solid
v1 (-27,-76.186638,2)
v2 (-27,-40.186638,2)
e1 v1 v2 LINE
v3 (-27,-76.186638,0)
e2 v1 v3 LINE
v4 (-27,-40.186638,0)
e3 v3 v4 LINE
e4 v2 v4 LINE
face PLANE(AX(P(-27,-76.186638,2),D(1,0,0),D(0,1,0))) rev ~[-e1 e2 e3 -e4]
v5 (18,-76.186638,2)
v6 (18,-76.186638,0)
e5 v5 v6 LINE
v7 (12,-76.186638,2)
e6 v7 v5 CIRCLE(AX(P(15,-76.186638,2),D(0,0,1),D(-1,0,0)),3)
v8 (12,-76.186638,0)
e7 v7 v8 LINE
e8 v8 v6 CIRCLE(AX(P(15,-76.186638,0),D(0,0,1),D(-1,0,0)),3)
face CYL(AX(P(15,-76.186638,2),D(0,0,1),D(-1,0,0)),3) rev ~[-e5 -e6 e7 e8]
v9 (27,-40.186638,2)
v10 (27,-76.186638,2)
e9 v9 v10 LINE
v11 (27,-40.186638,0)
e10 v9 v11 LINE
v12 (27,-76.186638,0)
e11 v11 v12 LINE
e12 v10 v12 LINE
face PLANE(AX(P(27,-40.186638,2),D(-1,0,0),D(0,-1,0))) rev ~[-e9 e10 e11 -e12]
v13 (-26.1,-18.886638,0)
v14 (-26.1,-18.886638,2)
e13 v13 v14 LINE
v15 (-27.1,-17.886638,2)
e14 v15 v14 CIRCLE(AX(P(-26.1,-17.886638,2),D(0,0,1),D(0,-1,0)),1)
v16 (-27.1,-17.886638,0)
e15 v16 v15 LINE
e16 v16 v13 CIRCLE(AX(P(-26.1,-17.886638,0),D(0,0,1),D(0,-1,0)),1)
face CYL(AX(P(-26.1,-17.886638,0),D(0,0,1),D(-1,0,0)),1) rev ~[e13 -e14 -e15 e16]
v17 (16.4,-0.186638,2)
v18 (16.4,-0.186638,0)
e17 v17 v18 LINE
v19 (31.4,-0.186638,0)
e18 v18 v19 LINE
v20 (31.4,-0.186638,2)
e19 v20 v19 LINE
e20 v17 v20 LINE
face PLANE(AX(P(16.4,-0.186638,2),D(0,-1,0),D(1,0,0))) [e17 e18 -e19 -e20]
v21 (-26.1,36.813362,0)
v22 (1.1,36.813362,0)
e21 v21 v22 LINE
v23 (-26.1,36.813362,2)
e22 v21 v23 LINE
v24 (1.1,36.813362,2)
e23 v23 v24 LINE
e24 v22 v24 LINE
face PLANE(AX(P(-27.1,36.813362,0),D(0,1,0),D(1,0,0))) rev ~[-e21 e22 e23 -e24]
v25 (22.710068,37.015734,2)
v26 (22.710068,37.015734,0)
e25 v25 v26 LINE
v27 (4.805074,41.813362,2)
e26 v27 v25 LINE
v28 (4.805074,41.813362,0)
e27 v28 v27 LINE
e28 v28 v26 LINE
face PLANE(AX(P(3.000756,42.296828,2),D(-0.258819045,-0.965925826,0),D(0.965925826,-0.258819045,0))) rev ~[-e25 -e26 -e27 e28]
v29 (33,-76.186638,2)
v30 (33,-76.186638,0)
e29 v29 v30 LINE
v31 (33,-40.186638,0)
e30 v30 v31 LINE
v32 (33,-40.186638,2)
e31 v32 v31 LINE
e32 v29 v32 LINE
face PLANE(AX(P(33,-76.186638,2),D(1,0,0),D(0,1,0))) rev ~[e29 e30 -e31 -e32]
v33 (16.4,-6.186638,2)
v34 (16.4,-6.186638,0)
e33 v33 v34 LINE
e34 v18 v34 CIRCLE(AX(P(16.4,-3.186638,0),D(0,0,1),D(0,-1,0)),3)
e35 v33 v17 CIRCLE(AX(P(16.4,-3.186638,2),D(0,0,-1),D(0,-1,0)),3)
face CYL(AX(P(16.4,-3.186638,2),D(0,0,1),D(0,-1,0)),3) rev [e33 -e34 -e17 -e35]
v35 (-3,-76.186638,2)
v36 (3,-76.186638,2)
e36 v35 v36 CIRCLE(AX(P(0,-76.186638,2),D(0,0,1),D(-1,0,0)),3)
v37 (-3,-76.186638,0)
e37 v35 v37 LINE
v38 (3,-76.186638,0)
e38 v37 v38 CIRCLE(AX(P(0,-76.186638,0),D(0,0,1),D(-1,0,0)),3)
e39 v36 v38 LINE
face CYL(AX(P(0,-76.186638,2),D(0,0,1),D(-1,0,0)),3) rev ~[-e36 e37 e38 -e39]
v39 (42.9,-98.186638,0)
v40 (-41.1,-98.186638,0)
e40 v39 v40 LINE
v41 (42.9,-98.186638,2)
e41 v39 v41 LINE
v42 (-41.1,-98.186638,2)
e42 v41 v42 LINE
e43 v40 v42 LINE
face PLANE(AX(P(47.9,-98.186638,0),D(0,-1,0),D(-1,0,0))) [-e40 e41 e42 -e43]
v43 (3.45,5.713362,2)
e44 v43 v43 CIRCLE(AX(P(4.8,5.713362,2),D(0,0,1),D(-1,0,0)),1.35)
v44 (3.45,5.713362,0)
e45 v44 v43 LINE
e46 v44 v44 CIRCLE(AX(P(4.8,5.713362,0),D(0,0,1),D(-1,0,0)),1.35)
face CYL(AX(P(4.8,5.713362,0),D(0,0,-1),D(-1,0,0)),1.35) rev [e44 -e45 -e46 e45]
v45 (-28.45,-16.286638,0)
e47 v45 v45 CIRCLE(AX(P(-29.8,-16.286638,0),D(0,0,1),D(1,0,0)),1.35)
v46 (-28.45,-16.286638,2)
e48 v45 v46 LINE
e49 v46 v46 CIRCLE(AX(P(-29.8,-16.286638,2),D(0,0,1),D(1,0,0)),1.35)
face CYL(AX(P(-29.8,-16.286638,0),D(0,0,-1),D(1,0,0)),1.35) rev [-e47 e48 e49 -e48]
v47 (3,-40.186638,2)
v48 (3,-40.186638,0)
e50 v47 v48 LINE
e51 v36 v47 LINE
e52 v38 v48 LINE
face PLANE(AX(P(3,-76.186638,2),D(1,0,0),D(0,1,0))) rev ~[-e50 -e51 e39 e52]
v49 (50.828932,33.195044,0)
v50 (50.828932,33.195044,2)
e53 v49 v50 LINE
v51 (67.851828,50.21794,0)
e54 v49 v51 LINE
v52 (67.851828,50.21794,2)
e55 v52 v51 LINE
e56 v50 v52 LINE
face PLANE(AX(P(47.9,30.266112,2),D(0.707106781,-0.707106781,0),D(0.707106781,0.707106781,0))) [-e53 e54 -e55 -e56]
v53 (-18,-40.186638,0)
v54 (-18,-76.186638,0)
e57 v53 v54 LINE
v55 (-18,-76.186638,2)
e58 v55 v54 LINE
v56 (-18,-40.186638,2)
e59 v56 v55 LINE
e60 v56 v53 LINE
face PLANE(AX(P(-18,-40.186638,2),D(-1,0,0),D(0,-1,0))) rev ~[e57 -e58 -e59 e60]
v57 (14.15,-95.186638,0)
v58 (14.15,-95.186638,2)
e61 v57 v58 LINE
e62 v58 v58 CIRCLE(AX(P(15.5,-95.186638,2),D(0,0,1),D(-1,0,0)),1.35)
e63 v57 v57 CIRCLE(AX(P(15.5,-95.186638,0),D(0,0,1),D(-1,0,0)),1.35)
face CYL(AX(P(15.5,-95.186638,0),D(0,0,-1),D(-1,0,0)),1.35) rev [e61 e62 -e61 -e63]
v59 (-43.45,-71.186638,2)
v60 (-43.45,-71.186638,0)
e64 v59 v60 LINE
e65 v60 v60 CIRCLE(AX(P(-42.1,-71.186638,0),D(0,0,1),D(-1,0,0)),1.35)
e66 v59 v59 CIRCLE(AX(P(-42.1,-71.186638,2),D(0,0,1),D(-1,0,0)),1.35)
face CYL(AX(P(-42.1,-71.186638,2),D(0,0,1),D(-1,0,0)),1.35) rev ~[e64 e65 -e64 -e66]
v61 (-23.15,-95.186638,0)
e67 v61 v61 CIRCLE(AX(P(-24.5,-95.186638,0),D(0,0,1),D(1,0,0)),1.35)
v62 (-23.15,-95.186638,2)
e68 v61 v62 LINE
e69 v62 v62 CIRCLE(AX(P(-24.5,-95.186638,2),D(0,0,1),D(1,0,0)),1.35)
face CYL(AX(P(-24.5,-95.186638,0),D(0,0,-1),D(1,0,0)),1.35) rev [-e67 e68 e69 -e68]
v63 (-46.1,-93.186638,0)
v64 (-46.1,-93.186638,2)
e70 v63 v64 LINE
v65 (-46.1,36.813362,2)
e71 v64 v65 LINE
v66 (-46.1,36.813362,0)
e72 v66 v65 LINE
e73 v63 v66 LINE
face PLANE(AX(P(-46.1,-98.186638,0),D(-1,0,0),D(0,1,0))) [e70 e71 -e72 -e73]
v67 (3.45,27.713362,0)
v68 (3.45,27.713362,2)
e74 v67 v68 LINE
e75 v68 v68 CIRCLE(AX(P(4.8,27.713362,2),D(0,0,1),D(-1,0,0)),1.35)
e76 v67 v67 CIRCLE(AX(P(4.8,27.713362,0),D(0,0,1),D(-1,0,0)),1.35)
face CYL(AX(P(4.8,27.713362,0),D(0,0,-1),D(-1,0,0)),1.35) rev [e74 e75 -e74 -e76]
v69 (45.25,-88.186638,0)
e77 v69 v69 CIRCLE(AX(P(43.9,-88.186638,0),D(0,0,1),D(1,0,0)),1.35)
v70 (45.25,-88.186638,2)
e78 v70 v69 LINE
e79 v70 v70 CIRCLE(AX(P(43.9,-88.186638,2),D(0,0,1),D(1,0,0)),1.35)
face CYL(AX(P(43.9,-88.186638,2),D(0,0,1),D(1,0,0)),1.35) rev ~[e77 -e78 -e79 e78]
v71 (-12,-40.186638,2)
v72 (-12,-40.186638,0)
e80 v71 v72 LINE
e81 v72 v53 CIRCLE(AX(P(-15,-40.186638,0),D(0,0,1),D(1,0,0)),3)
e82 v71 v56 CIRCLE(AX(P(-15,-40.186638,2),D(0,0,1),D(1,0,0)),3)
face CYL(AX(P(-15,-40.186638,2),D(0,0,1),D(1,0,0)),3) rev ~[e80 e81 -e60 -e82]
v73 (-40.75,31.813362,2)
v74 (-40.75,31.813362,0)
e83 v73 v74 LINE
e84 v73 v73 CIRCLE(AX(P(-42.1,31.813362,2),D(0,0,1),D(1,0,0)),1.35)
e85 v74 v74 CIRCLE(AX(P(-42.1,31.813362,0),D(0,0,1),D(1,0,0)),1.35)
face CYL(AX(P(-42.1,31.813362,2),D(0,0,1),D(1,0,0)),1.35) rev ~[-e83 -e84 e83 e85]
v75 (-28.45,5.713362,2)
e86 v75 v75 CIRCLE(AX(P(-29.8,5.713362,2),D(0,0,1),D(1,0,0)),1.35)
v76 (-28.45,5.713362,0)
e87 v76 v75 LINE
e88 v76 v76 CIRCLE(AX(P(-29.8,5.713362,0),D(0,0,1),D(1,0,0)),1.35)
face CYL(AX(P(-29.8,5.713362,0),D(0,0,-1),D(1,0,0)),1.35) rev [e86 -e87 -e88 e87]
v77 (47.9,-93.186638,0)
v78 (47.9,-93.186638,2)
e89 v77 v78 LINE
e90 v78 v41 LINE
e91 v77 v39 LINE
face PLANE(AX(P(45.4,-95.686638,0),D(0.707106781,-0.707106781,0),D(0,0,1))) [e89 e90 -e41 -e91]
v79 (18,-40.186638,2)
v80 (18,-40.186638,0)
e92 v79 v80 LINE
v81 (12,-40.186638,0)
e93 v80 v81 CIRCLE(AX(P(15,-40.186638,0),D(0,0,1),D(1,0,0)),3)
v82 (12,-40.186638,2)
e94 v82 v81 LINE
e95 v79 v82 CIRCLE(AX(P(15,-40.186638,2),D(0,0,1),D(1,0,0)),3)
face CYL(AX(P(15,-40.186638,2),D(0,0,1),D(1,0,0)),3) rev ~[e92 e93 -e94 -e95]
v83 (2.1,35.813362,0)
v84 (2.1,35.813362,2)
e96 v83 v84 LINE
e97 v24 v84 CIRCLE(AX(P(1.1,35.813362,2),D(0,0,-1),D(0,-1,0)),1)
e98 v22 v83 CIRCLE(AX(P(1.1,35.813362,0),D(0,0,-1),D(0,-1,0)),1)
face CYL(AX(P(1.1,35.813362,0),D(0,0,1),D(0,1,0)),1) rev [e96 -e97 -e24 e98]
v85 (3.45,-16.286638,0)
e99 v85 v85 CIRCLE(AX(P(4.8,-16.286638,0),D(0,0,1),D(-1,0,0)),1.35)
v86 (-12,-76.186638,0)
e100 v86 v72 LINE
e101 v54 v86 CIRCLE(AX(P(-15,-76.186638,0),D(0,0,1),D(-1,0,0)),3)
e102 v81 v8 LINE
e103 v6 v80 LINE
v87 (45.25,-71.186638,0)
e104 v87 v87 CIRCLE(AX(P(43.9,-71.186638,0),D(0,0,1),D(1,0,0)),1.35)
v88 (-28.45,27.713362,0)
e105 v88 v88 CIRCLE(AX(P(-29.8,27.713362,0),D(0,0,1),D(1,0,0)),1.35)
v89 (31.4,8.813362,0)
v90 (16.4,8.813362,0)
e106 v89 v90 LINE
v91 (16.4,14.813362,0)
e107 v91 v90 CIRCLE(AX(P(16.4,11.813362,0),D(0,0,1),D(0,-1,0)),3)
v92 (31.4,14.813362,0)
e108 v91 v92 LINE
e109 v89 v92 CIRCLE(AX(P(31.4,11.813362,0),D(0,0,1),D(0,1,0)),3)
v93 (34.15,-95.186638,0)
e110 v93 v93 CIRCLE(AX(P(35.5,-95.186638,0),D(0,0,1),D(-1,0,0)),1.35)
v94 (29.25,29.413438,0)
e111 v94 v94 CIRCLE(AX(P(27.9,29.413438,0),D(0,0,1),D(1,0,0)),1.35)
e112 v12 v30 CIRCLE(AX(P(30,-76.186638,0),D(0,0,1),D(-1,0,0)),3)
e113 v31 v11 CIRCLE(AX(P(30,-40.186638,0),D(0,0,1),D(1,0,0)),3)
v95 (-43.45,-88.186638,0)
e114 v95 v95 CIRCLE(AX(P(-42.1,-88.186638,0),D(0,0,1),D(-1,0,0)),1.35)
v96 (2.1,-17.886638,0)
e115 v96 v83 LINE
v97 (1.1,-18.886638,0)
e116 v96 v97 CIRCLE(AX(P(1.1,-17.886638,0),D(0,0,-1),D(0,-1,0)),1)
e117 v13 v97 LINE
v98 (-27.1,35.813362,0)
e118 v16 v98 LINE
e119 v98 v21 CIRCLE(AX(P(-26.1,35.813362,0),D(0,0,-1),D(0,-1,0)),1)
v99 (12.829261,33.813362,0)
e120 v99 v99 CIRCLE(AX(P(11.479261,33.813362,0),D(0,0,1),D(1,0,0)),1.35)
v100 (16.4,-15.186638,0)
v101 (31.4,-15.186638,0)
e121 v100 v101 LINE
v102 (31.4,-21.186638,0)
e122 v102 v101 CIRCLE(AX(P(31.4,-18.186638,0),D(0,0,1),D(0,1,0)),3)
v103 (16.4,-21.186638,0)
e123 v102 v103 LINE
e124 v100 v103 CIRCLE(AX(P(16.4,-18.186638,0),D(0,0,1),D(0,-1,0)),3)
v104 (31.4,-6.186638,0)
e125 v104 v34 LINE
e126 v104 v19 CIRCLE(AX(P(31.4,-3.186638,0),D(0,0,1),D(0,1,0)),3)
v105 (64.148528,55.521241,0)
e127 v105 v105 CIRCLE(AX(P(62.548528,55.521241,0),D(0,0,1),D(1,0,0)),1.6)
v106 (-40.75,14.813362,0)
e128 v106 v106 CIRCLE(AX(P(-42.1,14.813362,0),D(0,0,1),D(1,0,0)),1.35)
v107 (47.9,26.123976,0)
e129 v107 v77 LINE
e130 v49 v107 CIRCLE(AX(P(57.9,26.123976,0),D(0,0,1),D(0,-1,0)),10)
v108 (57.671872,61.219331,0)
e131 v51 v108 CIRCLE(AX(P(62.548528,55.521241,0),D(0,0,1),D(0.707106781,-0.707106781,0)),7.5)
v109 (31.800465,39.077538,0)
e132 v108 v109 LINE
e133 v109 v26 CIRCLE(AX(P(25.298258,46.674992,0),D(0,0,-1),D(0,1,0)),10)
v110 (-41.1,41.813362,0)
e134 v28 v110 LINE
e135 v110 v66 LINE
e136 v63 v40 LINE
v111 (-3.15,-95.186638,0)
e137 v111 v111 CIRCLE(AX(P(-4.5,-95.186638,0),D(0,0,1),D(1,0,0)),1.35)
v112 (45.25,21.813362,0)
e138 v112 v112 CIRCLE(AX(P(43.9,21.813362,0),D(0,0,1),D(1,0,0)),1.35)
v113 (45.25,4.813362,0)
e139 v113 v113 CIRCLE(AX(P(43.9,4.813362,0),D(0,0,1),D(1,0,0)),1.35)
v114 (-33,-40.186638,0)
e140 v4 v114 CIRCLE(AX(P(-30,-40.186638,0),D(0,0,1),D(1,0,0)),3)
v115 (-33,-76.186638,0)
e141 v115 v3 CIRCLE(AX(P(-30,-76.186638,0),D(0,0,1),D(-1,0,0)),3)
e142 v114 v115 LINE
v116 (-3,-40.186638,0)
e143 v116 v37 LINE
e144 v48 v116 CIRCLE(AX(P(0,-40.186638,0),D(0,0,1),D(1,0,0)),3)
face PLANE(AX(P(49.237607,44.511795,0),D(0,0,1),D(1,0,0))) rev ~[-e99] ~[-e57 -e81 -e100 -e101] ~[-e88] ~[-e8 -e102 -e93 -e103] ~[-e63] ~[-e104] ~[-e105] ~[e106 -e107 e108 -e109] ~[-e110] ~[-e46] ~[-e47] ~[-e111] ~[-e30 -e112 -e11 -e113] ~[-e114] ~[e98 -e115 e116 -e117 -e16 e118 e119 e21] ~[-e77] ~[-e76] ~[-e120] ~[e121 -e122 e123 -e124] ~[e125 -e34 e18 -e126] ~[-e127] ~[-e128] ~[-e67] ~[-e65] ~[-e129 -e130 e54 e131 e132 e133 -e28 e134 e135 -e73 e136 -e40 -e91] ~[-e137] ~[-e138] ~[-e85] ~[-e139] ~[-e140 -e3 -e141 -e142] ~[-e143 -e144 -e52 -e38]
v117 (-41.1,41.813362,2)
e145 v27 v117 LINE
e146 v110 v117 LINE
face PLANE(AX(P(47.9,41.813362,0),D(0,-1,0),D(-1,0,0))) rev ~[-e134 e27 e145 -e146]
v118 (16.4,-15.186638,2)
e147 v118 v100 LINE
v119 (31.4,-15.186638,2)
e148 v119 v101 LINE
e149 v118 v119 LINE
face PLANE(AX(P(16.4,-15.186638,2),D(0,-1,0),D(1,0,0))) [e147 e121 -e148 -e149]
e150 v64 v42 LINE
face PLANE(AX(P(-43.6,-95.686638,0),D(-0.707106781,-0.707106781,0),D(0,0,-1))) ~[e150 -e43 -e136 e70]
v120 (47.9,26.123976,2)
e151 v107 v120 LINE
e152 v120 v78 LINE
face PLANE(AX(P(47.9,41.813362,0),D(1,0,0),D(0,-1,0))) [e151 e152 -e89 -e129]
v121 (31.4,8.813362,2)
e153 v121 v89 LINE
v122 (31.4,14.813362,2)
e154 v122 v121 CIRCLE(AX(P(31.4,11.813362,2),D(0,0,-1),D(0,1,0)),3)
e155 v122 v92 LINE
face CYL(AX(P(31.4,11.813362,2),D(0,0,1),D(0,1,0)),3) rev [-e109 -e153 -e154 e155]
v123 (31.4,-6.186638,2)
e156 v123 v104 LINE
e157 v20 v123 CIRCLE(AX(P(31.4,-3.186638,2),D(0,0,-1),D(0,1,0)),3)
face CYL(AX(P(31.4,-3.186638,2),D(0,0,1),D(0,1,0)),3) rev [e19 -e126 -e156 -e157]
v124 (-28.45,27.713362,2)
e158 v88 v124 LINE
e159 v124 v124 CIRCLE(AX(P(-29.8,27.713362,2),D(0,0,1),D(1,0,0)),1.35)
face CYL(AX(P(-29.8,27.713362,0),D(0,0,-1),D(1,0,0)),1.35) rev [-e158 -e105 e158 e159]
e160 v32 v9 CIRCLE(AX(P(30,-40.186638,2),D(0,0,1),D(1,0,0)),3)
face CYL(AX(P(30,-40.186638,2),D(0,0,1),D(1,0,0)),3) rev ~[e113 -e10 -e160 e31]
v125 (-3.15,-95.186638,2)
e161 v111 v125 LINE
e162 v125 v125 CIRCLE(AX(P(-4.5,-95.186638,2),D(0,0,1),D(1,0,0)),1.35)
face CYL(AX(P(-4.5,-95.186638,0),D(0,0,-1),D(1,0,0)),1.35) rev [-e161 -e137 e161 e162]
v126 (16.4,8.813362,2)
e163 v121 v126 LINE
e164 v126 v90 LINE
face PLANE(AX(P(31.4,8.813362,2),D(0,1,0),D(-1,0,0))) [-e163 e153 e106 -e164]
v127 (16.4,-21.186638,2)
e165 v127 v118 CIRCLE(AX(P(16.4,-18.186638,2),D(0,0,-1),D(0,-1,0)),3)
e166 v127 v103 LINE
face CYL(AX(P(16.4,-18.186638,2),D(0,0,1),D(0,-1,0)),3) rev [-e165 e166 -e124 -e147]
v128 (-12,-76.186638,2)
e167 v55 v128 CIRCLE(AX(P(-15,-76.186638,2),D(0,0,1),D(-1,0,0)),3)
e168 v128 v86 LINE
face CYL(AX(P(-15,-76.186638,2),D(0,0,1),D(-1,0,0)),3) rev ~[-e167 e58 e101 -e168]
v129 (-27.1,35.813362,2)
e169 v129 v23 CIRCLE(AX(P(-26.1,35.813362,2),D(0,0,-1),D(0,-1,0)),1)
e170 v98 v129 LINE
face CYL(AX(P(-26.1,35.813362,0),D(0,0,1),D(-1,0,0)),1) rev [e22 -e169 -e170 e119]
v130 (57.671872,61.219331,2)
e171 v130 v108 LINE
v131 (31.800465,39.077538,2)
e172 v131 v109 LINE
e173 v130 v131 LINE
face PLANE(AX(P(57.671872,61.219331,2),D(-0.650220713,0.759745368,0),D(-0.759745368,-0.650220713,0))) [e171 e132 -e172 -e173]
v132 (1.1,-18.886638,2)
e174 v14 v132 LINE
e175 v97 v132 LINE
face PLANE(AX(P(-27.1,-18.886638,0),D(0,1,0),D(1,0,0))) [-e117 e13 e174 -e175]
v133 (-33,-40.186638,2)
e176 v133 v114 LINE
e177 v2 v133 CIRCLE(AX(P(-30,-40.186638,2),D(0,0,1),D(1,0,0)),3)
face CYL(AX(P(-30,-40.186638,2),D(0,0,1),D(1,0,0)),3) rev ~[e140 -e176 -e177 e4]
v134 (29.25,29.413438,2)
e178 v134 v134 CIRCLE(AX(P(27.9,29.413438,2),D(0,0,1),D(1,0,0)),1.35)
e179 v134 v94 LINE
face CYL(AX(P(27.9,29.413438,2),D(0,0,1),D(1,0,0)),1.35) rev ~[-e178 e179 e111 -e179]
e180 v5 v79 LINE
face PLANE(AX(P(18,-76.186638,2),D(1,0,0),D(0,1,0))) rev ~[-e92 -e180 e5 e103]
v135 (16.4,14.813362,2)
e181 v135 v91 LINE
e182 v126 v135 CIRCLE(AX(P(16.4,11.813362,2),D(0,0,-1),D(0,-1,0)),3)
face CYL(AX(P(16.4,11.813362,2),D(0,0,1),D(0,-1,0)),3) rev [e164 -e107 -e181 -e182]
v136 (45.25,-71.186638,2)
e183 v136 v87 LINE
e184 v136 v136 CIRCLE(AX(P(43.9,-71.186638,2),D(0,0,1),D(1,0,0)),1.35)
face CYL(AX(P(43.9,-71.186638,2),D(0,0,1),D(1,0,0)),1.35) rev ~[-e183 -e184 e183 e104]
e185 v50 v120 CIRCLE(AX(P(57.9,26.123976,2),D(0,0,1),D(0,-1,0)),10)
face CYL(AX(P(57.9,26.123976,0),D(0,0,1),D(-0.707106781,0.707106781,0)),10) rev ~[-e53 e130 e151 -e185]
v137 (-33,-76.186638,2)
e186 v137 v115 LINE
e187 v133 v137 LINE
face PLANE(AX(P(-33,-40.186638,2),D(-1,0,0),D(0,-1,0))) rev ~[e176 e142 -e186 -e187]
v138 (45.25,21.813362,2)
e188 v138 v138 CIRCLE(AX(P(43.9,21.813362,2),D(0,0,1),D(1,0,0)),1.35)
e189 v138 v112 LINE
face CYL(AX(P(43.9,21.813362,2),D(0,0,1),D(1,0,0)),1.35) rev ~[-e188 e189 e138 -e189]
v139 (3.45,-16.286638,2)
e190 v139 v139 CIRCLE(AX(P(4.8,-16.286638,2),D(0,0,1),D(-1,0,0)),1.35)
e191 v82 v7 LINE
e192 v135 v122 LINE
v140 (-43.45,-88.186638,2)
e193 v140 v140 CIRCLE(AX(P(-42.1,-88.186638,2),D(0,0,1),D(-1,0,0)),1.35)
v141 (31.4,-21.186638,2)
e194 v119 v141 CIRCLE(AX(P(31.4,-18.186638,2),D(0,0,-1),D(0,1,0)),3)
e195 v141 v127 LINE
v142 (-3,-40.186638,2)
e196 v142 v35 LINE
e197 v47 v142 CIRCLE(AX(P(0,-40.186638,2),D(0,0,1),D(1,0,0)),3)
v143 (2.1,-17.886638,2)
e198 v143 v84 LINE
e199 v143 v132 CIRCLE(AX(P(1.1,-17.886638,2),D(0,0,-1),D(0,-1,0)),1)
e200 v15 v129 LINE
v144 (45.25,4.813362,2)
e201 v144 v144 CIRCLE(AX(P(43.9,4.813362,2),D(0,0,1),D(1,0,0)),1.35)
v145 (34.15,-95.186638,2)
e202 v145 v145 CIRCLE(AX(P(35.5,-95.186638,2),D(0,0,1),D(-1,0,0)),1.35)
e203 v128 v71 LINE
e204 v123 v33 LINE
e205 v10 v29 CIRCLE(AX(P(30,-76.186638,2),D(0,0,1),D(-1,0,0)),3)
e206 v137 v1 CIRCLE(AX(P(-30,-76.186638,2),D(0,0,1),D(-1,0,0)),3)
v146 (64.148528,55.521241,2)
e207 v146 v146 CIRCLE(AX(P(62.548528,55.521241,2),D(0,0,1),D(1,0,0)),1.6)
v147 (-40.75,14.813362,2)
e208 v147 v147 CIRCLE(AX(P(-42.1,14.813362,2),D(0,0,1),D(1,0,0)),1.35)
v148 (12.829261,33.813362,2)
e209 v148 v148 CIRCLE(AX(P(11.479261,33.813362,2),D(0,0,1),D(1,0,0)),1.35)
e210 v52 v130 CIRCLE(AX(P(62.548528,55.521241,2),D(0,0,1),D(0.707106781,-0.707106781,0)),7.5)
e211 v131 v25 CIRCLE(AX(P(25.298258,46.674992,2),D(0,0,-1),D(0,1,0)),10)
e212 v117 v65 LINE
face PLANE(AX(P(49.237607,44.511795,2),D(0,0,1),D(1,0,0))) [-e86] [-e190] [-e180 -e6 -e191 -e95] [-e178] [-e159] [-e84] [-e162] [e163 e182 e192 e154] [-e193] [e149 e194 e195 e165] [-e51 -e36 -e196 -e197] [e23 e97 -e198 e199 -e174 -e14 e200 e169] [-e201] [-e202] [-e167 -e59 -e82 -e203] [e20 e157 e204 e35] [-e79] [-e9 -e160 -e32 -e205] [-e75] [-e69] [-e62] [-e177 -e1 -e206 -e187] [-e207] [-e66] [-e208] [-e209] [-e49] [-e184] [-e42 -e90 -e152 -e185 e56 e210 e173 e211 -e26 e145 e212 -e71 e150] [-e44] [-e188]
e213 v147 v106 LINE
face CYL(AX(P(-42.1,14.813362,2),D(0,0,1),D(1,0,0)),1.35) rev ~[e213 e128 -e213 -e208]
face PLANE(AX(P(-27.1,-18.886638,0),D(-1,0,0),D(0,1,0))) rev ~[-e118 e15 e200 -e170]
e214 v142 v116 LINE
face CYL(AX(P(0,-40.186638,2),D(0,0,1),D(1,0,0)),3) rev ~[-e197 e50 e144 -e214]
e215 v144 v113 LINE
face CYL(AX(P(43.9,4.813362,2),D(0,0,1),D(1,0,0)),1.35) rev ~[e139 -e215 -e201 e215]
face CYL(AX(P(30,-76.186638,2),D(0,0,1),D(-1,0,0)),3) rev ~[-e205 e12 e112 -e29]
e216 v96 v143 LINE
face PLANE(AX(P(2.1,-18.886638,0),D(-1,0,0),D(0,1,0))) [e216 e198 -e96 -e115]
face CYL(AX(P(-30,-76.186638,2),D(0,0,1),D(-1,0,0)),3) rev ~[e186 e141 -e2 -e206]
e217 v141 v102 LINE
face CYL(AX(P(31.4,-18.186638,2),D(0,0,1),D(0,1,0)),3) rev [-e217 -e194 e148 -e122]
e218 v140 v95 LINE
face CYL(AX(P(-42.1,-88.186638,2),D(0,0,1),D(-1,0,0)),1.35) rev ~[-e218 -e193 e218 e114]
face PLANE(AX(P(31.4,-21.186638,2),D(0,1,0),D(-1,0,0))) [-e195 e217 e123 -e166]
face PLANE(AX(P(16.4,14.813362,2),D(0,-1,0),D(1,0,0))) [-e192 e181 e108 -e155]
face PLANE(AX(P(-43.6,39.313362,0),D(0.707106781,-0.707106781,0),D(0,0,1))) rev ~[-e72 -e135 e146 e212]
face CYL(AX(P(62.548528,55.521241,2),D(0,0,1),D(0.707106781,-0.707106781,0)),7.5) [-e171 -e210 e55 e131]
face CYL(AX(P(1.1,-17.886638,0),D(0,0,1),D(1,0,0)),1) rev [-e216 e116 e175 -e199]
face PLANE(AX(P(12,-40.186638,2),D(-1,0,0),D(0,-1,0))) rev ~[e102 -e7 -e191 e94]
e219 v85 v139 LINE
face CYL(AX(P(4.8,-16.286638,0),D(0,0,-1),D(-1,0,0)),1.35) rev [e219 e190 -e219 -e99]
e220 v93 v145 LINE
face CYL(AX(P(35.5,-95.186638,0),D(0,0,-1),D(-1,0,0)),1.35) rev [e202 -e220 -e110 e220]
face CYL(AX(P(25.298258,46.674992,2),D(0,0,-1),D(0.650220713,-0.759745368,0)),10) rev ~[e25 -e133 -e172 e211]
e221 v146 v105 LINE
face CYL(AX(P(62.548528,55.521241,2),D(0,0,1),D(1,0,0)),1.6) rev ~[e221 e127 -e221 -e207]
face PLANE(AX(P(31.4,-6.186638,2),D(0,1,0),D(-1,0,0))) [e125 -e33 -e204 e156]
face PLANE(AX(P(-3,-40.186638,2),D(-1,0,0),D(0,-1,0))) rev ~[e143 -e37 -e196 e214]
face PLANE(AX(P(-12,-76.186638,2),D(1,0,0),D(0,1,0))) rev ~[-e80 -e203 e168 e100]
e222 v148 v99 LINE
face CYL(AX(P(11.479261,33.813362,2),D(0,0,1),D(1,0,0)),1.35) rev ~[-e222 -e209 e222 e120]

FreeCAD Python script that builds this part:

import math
import FreeCAD as App
import Part
import Sketcher
Q = App.Units.Quantity


def edges_at(feature, points):
    """Names of the edges that pass closest to the given points."""
    edges = feature.Shape.Edges
    near = lambda p: min(range(len(edges)), key=lambda i: edges[i].distToShape(Part.Vertex(*p))[0])
    return sorted({f"Edge{near(p) + 1}" for p in points})


def add_polygon(sketch, points):
    """Adds a closed chain of lines whose ends are joined by coincident constraints."""
    first, n = sketch.GeometryCount, len(points)
    for a, b in zip(points, points[1:] + points[:1]):
        sketch.addGeometry(Part.LineSegment(App.Vector(*a, 0), App.Vector(*b, 0)), False)
    for i in range(n):
        sketch.addConstraint(Sketcher.Constraint("Coincident", first + i, 2, first + (i + 1) % n, 1))

doc = App.newDocument("Part")
params = doc.addObject("Spreadsheet::Sheet", "Params")
for row, (alias, value) in enumerate([
    ("sketch1_diameter", "2.7 mm"),
    ("sketch1_width", "94 mm"),
    ("sketch1_height", "140 mm"),
    ("sketch1_width2", "29.2 mm"),
    ("sketch1_height2", "55.7 mm"),
    ("pad1_length", "2 mm"),
    ("fillet_radius", "1 mm"),
    ("sketch2_diameter", "2.7 mm"),
    ("sketch3_diameter", "2.7 mm"),
    ("sketch4_diameter", "2.7 mm"),
    ("sketch5_diameter", "2.7 mm"),
    ("sketch6_diameter", "2.7 mm"),
    ("sketch7_diameter", "2.7 mm"),
    ("sketch8_diameter", "2.7 mm"),
    ("sketch9_diameter", "2.7 mm"),
    ("sketch10_radius", "3 mm"),
    ("sketch10_height", "36 mm"),
    ("sketch11_radius", "3 mm"),
    ("sketch11_height", "36 mm"),
    ("sketch12_radius", "3 mm"),
    ("sketch12_height", "36 mm"),
    ("sketch13_radius", "3 mm"),
    ("sketch13_height", "36 mm"),
    ("sketch14_radius", "3 mm"),
    ("sketch14_height", "36 mm"),
    ("sketch15_radius", "3 mm"),
    ("sketch15_width", "15 mm"),
    ("sketch16_radius", "3 mm"),
    ("sketch16_width", "15 mm"),
    ("sketch17_radius", "3 mm"),
    ("sketch17_width", "15 mm"),
    ("chamfer_size", "5 mm"),
    ("sketch18_diameter", "2.7 mm"),
    ("sketch19_diameter", "2.7 mm"),
    ("sketch21_diameter", "3.2 mm"),
    ("sketch21_radius", "7.5 mm"),
    ("pad2_length", "2 mm"),
    ("fillet2_radius", "10 mm"),
], start=1):
    params.set(f"A{row}", alias)
    params.set(f"B{row}", "=" + value)
    params.setAlias(f"B{row}", alias)

body = doc.addObject("PartDesign::Body", "Body")

# Sketch on XY plane
sketch1 = doc.addObject("Sketcher::SketchObject", "Sketch")
body.addObject(sketch1)
sketch1.AttachmentSupport = (doc.XY_Plane, [""])
sketch1.MapMode = "FlatFace"
add_polygon(sketch1, [(47.9, 41.813362), (-46.1, 41.813362), (-46.1, -98.186638), (47.9, -98.186638)])  # lines 0-3
sketch1.addGeometry(Part.Circle(App.Vector(35.5, -95.186638, 0), App.Vector(0, 0, 1), 1.35), False)  # 4
sketch1.addGeometry(Part.Circle(App.Vector(15.5, -95.186638, 0), App.Vector(0, 0, 1), 1.35), False)  # 5
sketch1.addGeometry(Part.Circle(App.Vector(-4.5, -95.186638, 0), App.Vector(0, 0, 1), 1.35), False)  # 6
sketch1.addGeometry(Part.Circle(App.Vector(-24.5, -95.186638, 0), App.Vector(0, 0, 1), 1.35), False)  # 7
sketch1.addGeometry(Part.Circle(App.Vector(4.8, -16.286638, 0), App.Vector(0, 0, 1), 1.35), False)  # 8
sketch1.addGeometry(Part.Circle(App.Vector(4.8, 5.713362, 0), App.Vector(0, 0, 1), 1.35), False)  # 9
sketch1.addGeometry(Part.Circle(App.Vector(4.8, 27.713362, 0), App.Vector(0, 0, 1), 1.35), False)  # 10
sketch1.addGeometry(Part.Circle(App.Vector(-29.8, -16.286638, 0), App.Vector(0, 0, 1), 1.35), False)  # 11
add_polygon(sketch1, [(-27.1, -18.886638), (-27.1, 36.813362), (2.1, 36.813362), (2.1, -18.886638)])  # lines 12-15
sketch1.addGeometry(Part.Circle(App.Vector(-29.8, 5.713362, 0), App.Vector(0, 0, 1), 1.35), False)  # 16
sketch1.addGeometry(Part.Circle(App.Vector(-29.8, 27.713362, 0), App.Vector(0, 0, 1), 1.35), False)  # 17
sketch1.addConstraint([
    Sketcher.Constraint("Horizontal", 0),
    Sketcher.Constraint("Vertical", 1),
    Sketcher.Constraint("Horizontal", 2),
    Sketcher.Constraint("Vertical", 3),
    Sketcher.Constraint("Vertical", 12),
    Sketcher.Constraint("Horizontal", 13),
    Sketcher.Constraint("Vertical", 14),
    Sketcher.Constraint("Horizontal", 15),
    Sketcher.Constraint("Equal", 4, 5),
    Sketcher.Constraint("Equal", 5, 6),
    Sketcher.Constraint("Equal", 6, 7),
    Sketcher.Constraint("Equal", 7, 8),
    Sketcher.Constraint("Equal", 8, 9),
    Sketcher.Constraint("Equal", 9, 10),
    Sketcher.Constraint("Equal", 10, 11),
    Sketcher.Constraint("Equal", 11, 16),
    Sketcher.Constraint("Equal", 16, 17),
    Sketcher.Constraint("Horizontal", 4, 3, 5, 3),
    Sketcher.Constraint("Horizontal", 5, 3, 6, 3),
    Sketcher.Constraint("Horizontal", 6, 3, 7, 3),
    Sketcher.Constraint("Horizontal", 8, 3, 11, 3),
    Sketcher.Constraint("Horizontal", 9, 3, 16, 3),
    Sketcher.Constraint("Horizontal", 10, 3, 17, 3),
    Sketcher.Constraint("Vertical", 8, 3, 9, 3),
    Sketcher.Constraint("Vertical", 9, 3, 10, 3),
    Sketcher.Constraint("Vertical", 11, 3, 16, 3),
    Sketcher.Constraint("Vertical", 16, 3, 17, 3),
    Sketcher.Constraint("Diameter", 4, Q("2.7 mm")),
    Sketcher.Constraint("DistanceX", 0, 2, 0, 1, Q("94 mm")),
    Sketcher.Constraint("DistanceY", 1, 2, 1, 1, Q("140 mm")),
    Sketcher.Constraint("DistanceX", 13, 1, 13, 2, Q("29.2 mm")),
    Sketcher.Constraint("DistanceY", 12, 1, 12, 2, Q("55.7 mm")),
    Sketcher.Constraint("DistanceX", 5, 3, 4, 3, Q("20 mm")),
    Sketcher.Constraint("DistanceX", 6, 3, 5, 3, Q("20 mm")),
    Sketcher.Constraint("DistanceX", 7, 3, 6, 3, Q("20 mm")),
    Sketcher.Constraint("DistanceY", 8, 3, 9, 3, Q("22 mm")),
    Sketcher.Constraint("DistanceY", 9, 3, 10, 3, Q("22 mm")),
    Sketcher.Constraint("DistanceY", 1, 2, 7, 3, Q("3 mm")),
    Sketcher.Constraint("DistanceX", 0, 2, 12, 2, Q("19 mm")),
    Sketcher.Constraint("DistanceY", 12, 2, 0, 2, Q("5 mm")),
    Sketcher.Constraint("DistanceX", -1, 1, 4, 3, Q("35.5 mm")),
    Sketcher.Constraint("DistanceX", -1, 1, 8, 3, Q("4.8 mm")),
    Sketcher.Constraint("DistanceX", 11, 3, -1, 1, Q("29.8 mm")),
    Sketcher.Constraint("DistanceX", 0, 2, -1, 1, Q("46.1 mm")),
    Sketcher.Constraint("DistanceY", 6, 3, 8, 3, Q("78.9 mm")),
    Sketcher.Constraint("DistanceY", 4, 3, -1, 1, Q("95.186638 mm")),
])
sketch1.setExpression("Constraints[35]", "Params.sketch1_diameter")
sketch1.setExpression("Constraints[36]", "Params.sketch1_width")
sketch1.setExpression("Constraints[37]", "Params.sketch1_height")
sketch1.setExpression("Constraints[38]", "Params.sketch1_width2")
sketch1.setExpression("Constraints[39]", "Params.sketch1_height2")
pad1 = doc.addObject("PartDesign::Pad", "Pad")
body.addObject(pad1)
pad1.Profile = sketch1
pad1.setExpression("Length", "Params.pad1_length")
doc.recompute()

fillet = doc.addObject("PartDesign::Fillet", "Fillet")
body.addObject(fillet)
fillet.Base = (pad1, edges_at(pad1, [
    (-27.1, 36.813, 1),
    (-27.1, -18.887, 1),
    (2.1, -18.887, 1),
    (2.1, 36.813, 1),
]))
fillet.setExpression("Radius", "Params.fillet_radius")

# Sketch on XY plane
sketch2 = doc.addObject("Sketcher::SketchObject", "Sketch001")
body.addObject(sketch2)
sketch2.AttachmentSupport = (doc.XY_Plane, [""])
sketch2.MapMode = "FlatFace"
sketch2.AttachmentOffset = App.Placement(App.Vector(0, 0, 2), App.Rotation())
sketch2.addGeometry(Part.Circle(App.Vector(-42.1, 31.813362, 0), App.Vector(0, 0, 1), 1.35), False)
sketch2.addConstraint([
    Sketcher.Constraint("Diameter", 0, Q("2.7 mm")),
    Sketcher.Constraint("DistanceX", 0, 3, -1, 1, Q("42.1 mm")),
    Sketcher.Constraint("DistanceY", -1, 1, 0, 3, Q("31.813362 mm")),
])
sketch2.setExpression("Constraints[0]", "Params.sketch2_diameter")
pocket1 = doc.addObject("PartDesign::Pocket", "Pocket")
body.addObject(pocket1)
pocket1.Profile = sketch2
pocket1.Type = "UpToFirst"

# Sketch on XY plane
sketch3 = doc.addObject("Sketcher::SketchObject", "Sketch002")
body.addObject(sketch3)
sketch3.AttachmentSupport = (doc.XY_Plane, [""])
sketch3.MapMode = "FlatFace"
sketch3.AttachmentOffset = App.Placement(App.Vector(0, 0, 2), App.Rotation())
sketch3.addGeometry(Part.Circle(App.Vector(-42.1, 14.813362, 0), App.Vector(0, 0, 1), 1.35), False)
sketch3.addConstraint([
    Sketcher.Constraint("Diameter", 0, Q("2.7 mm")),
    Sketcher.Constraint("DistanceX", 0, 3, -1, 1, Q("42.1 mm")),
    Sketcher.Constraint("DistanceY", -1, 1, 0, 3, Q("14.813362 mm")),
])
sketch3.setExpression("Constraints[0]", "Params.sketch3_diameter")
pocket2 = doc.addObject("PartDesign::Pocket", "Pocket001")
body.addObject(pocket2)
pocket2.Profile = sketch3
pocket2.Type = "UpToFirst"

# Sketch on XY plane
sketch4 = doc.addObject("Sketcher::SketchObject", "Sketch003")
body.addObject(sketch4)
sketch4.AttachmentSupport = (doc.XY_Plane, [""])
sketch4.MapMode = "FlatFace"
sketch4.AttachmentOffset = App.Placement(App.Vector(0, 0, 2), App.Rotation())
sketch4.addGeometry(Part.Circle(App.Vector(-42.1, -71.186638, 0), App.Vector(0, 0, 1), 1.35), False)
sketch4.addConstraint([
    Sketcher.Constraint("Diameter", 0, Q("2.7 mm")),
    Sketcher.Constraint("DistanceX", 0, 3, -1, 1, Q("42.1 mm")),
    Sketcher.Constraint("DistanceY", 0, 3, -1, 1, Q("71.186638 mm")),
])
sketch4.setExpression("Constraints[0]", "Params.sketch4_diameter")
pocket3 = doc.addObject("PartDesign::Pocket", "Pocket002")
body.addObject(pocket3)
pocket3.Profile = sketch4
pocket3.Type = "UpToFirst"

# Sketch on XY plane
sketch5 = doc.addObject("Sketcher::SketchObject", "Sketch004")
body.addObject(sketch5)
sketch5.AttachmentSupport = (doc.XY_Plane, [""])
sketch5.MapMode = "FlatFace"
sketch5.AttachmentOffset = App.Placement(App.Vector(0, 0, 2), App.Rotation())
sketch5.addGeometry(Part.Circle(App.Vector(-42.1, -88.186638, 0), App.Vector(0, 0, 1), 1.35), False)
sketch5.addConstraint([
    Sketcher.Constraint("Diameter", 0, Q("2.7 mm")),
    Sketcher.Constraint("DistanceX", 0, 3, -1, 1, Q("42.1 mm")),
    Sketcher.Constraint("DistanceY", 0, 3, -1, 1, Q("88.186638 mm")),
])
sketch5.setExpression("Constraints[0]", "Params.sketch5_diameter")
pocket4 = doc.addObject("PartDesign::Pocket", "Pocket003")
body.addObject(pocket4)
pocket4.Profile = sketch5
pocket4.Type = "UpToFirst"

# Sketch on XY plane
sketch6 = doc.addObject("Sketcher::SketchObject", "Sketch005")
body.addObject(sketch6)
sketch6.AttachmentSupport = (doc.XY_Plane, [""])
sketch6.MapMode = "FlatFace"
sketch6.AttachmentOffset = App.Placement(App.Vector(0, 0, 2), App.Rotation())
sketch6.addGeometry(Part.Circle(App.Vector(43.9, -88.186638, 0), App.Vector(0, 0, 1), 1.35), False)
sketch6.addConstraint([
    Sketcher.Constraint("Diameter", 0, Q("2.7 mm")),
    Sketcher.Constraint("DistanceX", -1, 1, 0, 3, Q("43.9 mm")),
    Sketcher.Constraint("DistanceY", 0, 3, -1, 1, Q("88.186638 mm")),
])
sketch6.setExpression("Constraints[0]", "Params.sketch6_diameter")
pocket5 = doc.addObject("PartDesign::Pocket", "Pocket004")
body.addObject(pocket5)
pocket5.Profile = sketch6
pocket5.Type = "UpToFirst"

# Sketch on XY plane
sketch7 = doc.addObject("Sketcher::SketchObject", "Sketch006")
body.addObject(sketch7)
sketch7.AttachmentSupport = (doc.XY_Plane, [""])
sketch7.MapMode = "FlatFace"
sketch7.AttachmentOffset = App.Placement(App.Vector(0, 0, 2), App.Rotation())
sketch7.addGeometry(Part.Circle(App.Vector(43.9, -71.186638, 0), App.Vector(0, 0, 1), 1.35), False)
sketch7.addConstraint([
    Sketcher.Constraint("Diameter", 0, Q("2.7 mm")),
    Sketcher.Constraint("DistanceX", -1, 1, 0, 3, Q("43.9 mm")),
    Sketcher.Constraint("DistanceY", 0, 3, -1, 1, Q("71.186638 mm")),
])
sketch7.setExpression("Constraints[0]", "Params.sketch7_diameter")
pocket6 = doc.addObject("PartDesign::Pocket", "Pocket005")
body.addObject(pocket6)
pocket6.Profile = sketch7
pocket6.Type = "UpToFirst"

# Sketch on XY plane
sketch8 = doc.addObject("Sketcher::SketchObject", "Sketch007")
body.addObject(sketch8)
sketch8.AttachmentSupport = (doc.XY_Plane, [""])
sketch8.MapMode = "FlatFace"
sketch8.AttachmentOffset = App.Placement(App.Vector(0, 0, 2), App.Rotation())
sketch8.addGeometry(Part.Circle(App.Vector(43.9, 21.813362, 0), App.Vector(0, 0, 1), 1.35), False)
sketch8.addConstraint([
    Sketcher.Constraint("Diameter", 0, Q("2.7 mm")),
    Sketcher.Constraint("DistanceX", -1, 1, 0, 3, Q("43.9 mm")),
    Sketcher.Constraint("DistanceY", -1, 1, 0, 3, Q("21.813362 mm")),
])
sketch8.setExpression("Constraints[0]", "Params.sketch8_diameter")
pocket7 = doc.addObject("PartDesign::Pocket", "Pocket006")
body.addObject(pocket7)
pocket7.Profile = sketch8
pocket7.Type = "UpToFirst"

# Sketch on XY plane
sketch9 = doc.addObject("Sketcher::SketchObject", "Sketch008")
body.addObject(sketch9)
sketch9.AttachmentSupport = (doc.XY_Plane, [""])
sketch9.MapMode = "FlatFace"
sketch9.AttachmentOffset = App.Placement(App.Vector(0, 0, 2), App.Rotation())
sketch9.addGeometry(Part.Circle(App.Vector(43.9, 4.813362, 0), App.Vector(0, 0, 1), 1.35), False)
sketch9.addConstraint([
    Sketcher.Constraint("Diameter", 0, Q("2.7 mm")),
    Sketcher.Constraint("DistanceX", -1, 1, 0, 3, Q("43.9 mm")),
    Sketcher.Constraint("DistanceY", -1, 1, 0, 3, Q("4.813362 mm")),
])
sketch9.setExpression("Constraints[0]", "Params.sketch9_diameter")
pocket8 = doc.addObject("PartDesign::Pocket", "Pocket007")
body.addObject(pocket8)
pocket8.Profile = sketch9
pocket8.Type = "UpToFirst"

# Sketch on XY plane
sketch10 = doc.addObject("Sketcher::SketchObject", "Sketch009")
body.addObject(sketch10)
sketch10.AttachmentSupport = (doc.XY_Plane, [""])
sketch10.MapMode = "FlatFace"
sketch10.AttachmentOffset = App.Placement(App.Vector(0, 0, 2), App.Rotation())
sketch10.addGeometry([
    Part.LineSegment(App.Vector(-3, -40.186638, 0), App.Vector(-3, -76.186638, 0)),
    Part.ArcOfCircle(Part.Circle(App.Vector(0, -76.186638, 0), App.Vector(0, 0, 1), 3), math.radians(180), math.radians(360)),
    Part.LineSegment(App.Vector(3, -76.186638, 0), App.Vector(3, -40.186638, 0)),
    Part.ArcOfCircle(Part.Circle(App.Vector(0, -40.186638, 0), App.Vector(0, 0, 1), 3), math.radians(0), math.radians(180)),
], False)
sketch10.addConstraint([
    Sketcher.Constraint("Tangent", 0, 2, 1, 1),
    Sketcher.Constraint("Tangent", 1, 2, 2, 1),
    Sketcher.Constraint("Tangent", 2, 2, 3, 1),
    Sketcher.Constraint("Tangent", 3, 2, 0, 1),
    Sketcher.Constraint("Vertical", 0),
    Sketcher.Constraint("Vertical", 2),
    Sketcher.Constraint("PointOnObject", 1, 3, -2),
    Sketcher.Constraint("Radius", 1, Q("3 mm")),
    Sketcher.Constraint("DistanceY", 0, 2, 0, 1, Q("36 mm")),
    Sketcher.Constraint("DistanceY", 1, 3, -1, 1, Q("76.186638 mm")),
])
sketch10.setExpression("Constraints[7]", "Params.sketch10_radius")
sketch10.setExpression("Constraints[8]", "Params.sketch10_height")
pocket9 = doc.addObject("PartDesign::Pocket", "Pocket008")
body.addObject(pocket9)
pocket9.Profile = sketch10
pocket9.Type = "UpToFirst"

# Sketch on XY plane
sketch11 = doc.addObject("Sketcher::SketchObject", "Sketch010")
body.addObject(sketch11)
sketch11.AttachmentSupport = (doc.XY_Plane, [""])
sketch11.MapMode = "FlatFace"
sketch11.AttachmentOffset = App.Placement(App.Vector(0, 0, 2), App.Rotation())
sketch11.addGeometry([
    Part.LineSegment(App.Vector(12, -40.186638, 0), App.Vector(12, -76.186638, 0)),
    Part.ArcOfCircle(Part.Circle(App.Vector(15, -76.186638, 0), App.Vector(0, 0, 1), 3), math.radians(180), math.radians(360)),
    Part.LineSegment(App.Vector(18, -76.186638, 0), App.Vector(18, -40.186638, 0)),
    Part.ArcOfCircle(Part.Circle(App.Vector(15, -40.186638, 0), App.Vector(0, 0, 1), 3), math.radians(0), math.radians(180)),
], False)
sketch11.addConstraint([
    Sketcher.Constraint("Tangent", 0, 2, 1, 1),
    Sketcher.Constraint("Tangent", 1, 2, 2, 1),
    Sketcher.Constraint("Tangent", 2, 2, 3, 1),
    Sketcher.Constraint("Tangent", 3, 2, 0, 1),
    Sketcher.Constraint("Vertical", 0),
    Sketcher.Constraint("Vertical", 2),
    Sketcher.Constraint("Radius", 1, Q("3 mm")),
    Sketcher.Constraint("DistanceY", 0, 2, 0, 1, Q("36 mm")),
    Sketcher.Constraint("DistanceX", -1, 1, 1, 3, Q("15 mm")),
    Sketcher.Constraint("DistanceY", 1, 3, -1, 1, Q("76.186638 mm")),
])
sketch11.setExpression("Constraints[6]", "Params.sketch11_radius")
sketch11.setExpression("Constraints[7]", "Params.sketch11_height")
pocket10 = doc.addObject("PartDesign::Pocket", "Pocket009")
body.addObject(pocket10)
pocket10.Profile = sketch11
pocket10.Type = "UpToFirst"

# Sketch on XY plane
sketch12 = doc.addObject("Sketcher::SketchObject", "Sketch011")
body.addObject(sketch12)
sketch12.AttachmentSupport = (doc.XY_Plane, [""])
sketch12.MapMode = "FlatFace"
sketch12.AttachmentOffset = App.Placement(App.Vector(0, 0, 2), App.Rotation())
sketch12.addGeometry([
    Part.LineSegment(App.Vector(27, -40.186638, 0), App.Vector(27, -76.186638, 0)),
    Part.ArcOfCircle(Part.Circle(App.Vector(30, -76.186638, 0), App.Vector(0, 0, 1), 3), math.radians(180), math.radians(360)),
    Part.LineSegment(App.Vector(33, -76.186638, 0), App.Vector(33, -40.186638, 0)),
    Part.ArcOfCircle(Part.Circle(App.Vector(30, -40.186638, 0), App.Vector(0, 0, 1), 3), math.radians(0), math.radians(180)),
], False)
sketch12.addConstraint([
    Sketcher.Constraint("Tangent", 0, 2, 1, 1),
    Sketcher.Constraint("Tangent", 1, 2, 2, 1),
    Sketcher.Constraint("Tangent", 2, 2, 3, 1),
    Sketcher.Constraint("Tangent", 3, 2, 0, 1),
    Sketcher.Constraint("Vertical", 0),
    Sketcher.Constraint("Vertical", 2),
    Sketcher.Constraint("Radius", 1, Q("3 mm")),
    Sketcher.Constraint("DistanceY", 0, 2, 0, 1, Q("36 mm")),
    Sketcher.Constraint("DistanceX", -1, 1, 1, 3, Q("30 mm")),
    Sketcher.Constraint("DistanceY", 1, 3, -1, 1, Q("76.186638 mm")),
])
sketch12.setExpression("Constraints[6]", "Params.sketch12_radius")
sketch12.setExpression("Constraints[7]", "Params.sketch12_height")
pocket11 = doc.addObject("PartDesign::Pocket", "Pocket010")
body.addObject(pocket11)
pocket11.Profile = sketch12
pocket11.Type = "UpToFirst"

# Sketch on XY plane
sketch13 = doc.addObject("Sketcher::SketchObject", "Sketch012")
body.addObject(sketch13)
sketch13.AttachmentSupport = (doc.XY_Plane, [""])
sketch13.MapMode = "FlatFace"
sketch13.AttachmentOffset = App.Placement(App.Vector(0, 0, 2), App.Rotation())
sketch13.addGeometry([
    Part.LineSegment(App.Vector(-18, -40.186638, 0), App.Vector(-18, -76.186638, 0)),
    Part.ArcOfCircle(Part.Circle(App.Vector(-15, -76.186638, 0), App.Vector(0, 0, 1), 3), math.radians(180), math.radians(360)),
    Part.LineSegment(App.Vector(-12, -76.186638, 0), App.Vector(-12, -40.186638, 0)),
    Part.ArcOfCircle(Part.Circle(App.Vector(-15, -40.186638, 0), App.Vector(0, 0, 1), 3), math.radians(0), math.radians(180)),
], False)
sketch13.addConstraint([
    Sketcher.Constraint("Tangent", 0, 2, 1, 1),
    Sketcher.Constraint("Tangent", 1, 2, 2, 1),
    Sketcher.Constraint("Tangent", 2, 2, 3, 1),
    Sketcher.Constraint("Tangent", 3, 2, 0, 1),
    Sketcher.Constraint("Vertical", 0),
    Sketcher.Constraint("Vertical", 2),
    Sketcher.Constraint("Radius", 1, Q("3 mm")),
    Sketcher.Constraint("DistanceY", 0, 2, 0, 1, Q("36 mm")),
    Sketcher.Constraint("DistanceX", 1, 3, -1, 1, Q("15 mm")),
    Sketcher.Constraint("DistanceY", 1, 3, -1, 1, Q("76.186638 mm")),
])
sketch13.setExpression("Constraints[6]", "Params.sketch13_radius")
sketch13.setExpression("Constraints[7]", "Params.sketch13_height")
pocket12 = doc.addObject("PartDesign::Pocket", "Pocket011")
body.addObject(pocket12)
pocket12.Profile = sketch13
pocket12.Type = "UpToFirst"

# Sketch on XY plane
sketch14 = doc.addObject("Sketcher::SketchObject", "Sketch013")
body.addObject(sketch14)
sketch14.AttachmentSupport = (doc.XY_Plane, [""])
sketch14.MapMode = "FlatFace"
sketch14.AttachmentOffset = App.Placement(App.Vector(0, 0, 2), App.Rotation())
sketch14.addGeometry([
    Part.LineSegment(App.Vector(-33, -40.186638, 0), App.Vector(-33, -76.186638, 0)),
    Part.ArcOfCircle(Part.Circle(App.Vector(-30, -76.186638, 0), App.Vector(0, 0, 1), 3), math.radians(180), math.radians(360)),
    Part.LineSegment(App.Vector(-27, -76.186638, 0), App.Vector(-27, -40.186638, 0)),
    Part.ArcOfCircle(Part.Circle(App.Vector(-30, -40.186638, 0), App.Vector(0, 0, 1), 3), math.radians(0), math.radians(180)),
], False)
sketch14.addConstraint([
    Sketcher.Constraint("Tangent", 0, 2, 1, 1),
    Sketcher.Constraint("Tangent", 1, 2, 2, 1),
    Sketcher.Constraint("Tangent", 2, 2, 3, 1),
    Sketcher.Constraint("Tangent", 3, 2, 0, 1),
    Sketcher.Constraint("Vertical", 0),
    Sketcher.Constraint("Vertical", 2),
    Sketcher.Constraint("Radius", 1, Q("3 mm")),
    Sketcher.Constraint("DistanceY", 0, 2, 0, 1, Q("36 mm")),
    Sketcher.Constraint("DistanceX", 1, 3, -1, 1, Q("30 mm")),
    Sketcher.Constraint("DistanceY", 1, 3, -1, 1, Q("76.186638 mm")),
])
sketch14.setExpression("Constraints[6]", "Params.sketch14_radius")
sketch14.setExpression("Constraints[7]", "Params.sketch14_height")
pocket13 = doc.addObject("PartDesign::Pocket", "Pocket012")
body.addObject(pocket13)
pocket13.Profile = sketch14
pocket13.Type = "UpToFirst"

# Sketch on XY plane
sketch15 = doc.addObject("Sketcher::SketchObject", "Sketch014")
body.addObject(sketch15)
sketch15.AttachmentSupport = (doc.XY_Plane, [""])
sketch15.MapMode = "FlatFace"
sketch15.AttachmentOffset = App.Placement(App.Vector(0, 0, 2), App.Rotation())
sketch15.addGeometry([
    Part.LineSegment(App.Vector(31.4, -15.186638, 0), App.Vector(16.4, -15.186638, 0)),
    Part.ArcOfCircle(Part.Circle(App.Vector(16.4, -18.186638, 0), App.Vector(0, 0, 1), 3), math.radians(90), math.radians(270)),
    Part.LineSegment(App.Vector(16.4, -21.186638, 0), App.Vector(31.4, -21.186638, 0)),
    Part.ArcOfCircle(Part.Circle(App.Vector(31.4, -18.186638, 0), App.Vector(0, 0, 1), 3), math.radians(-90), math.radians(90)),
], False)
sketch15.addConstraint([
    Sketcher.Constraint("Tangent", 0, 2, 1, 1),
    Sketcher.Constraint("Tangent", 1, 2, 2, 1),
    Sketcher.Constraint("Tangent", 2, 2, 3, 1),
    Sketcher.Constraint("Tangent", 3, 2, 0, 1),
    Sketcher.Constraint("Horizontal", 0),
    Sketcher.Constraint("Horizontal", 2),
    Sketcher.Constraint("Radius", 1, Q("3 mm")),
    Sketcher.Constraint("DistanceX", 0, 2, 0, 1, Q("15 mm")),
    Sketcher.Constraint("DistanceX", -1, 1, 1, 3, Q("16.4 mm")),
    Sketcher.Constraint("DistanceY", 1, 3, -1, 1, Q("18.186638 mm")),
])
sketch15.setExpression("Constraints[6]", "Params.sketch15_radius")
sketch15.setExpression("Constraints[7]", "Params.sketch15_width")
pocket14 = doc.addObject("PartDesign::Pocket", "Pocket013")
body.addObject(pocket14)
pocket14.Profile = sketch15
pocket14.Type = "UpToFirst"

# Sketch on XY plane
sketch16 = doc.addObject("Sketcher::SketchObject", "Sketch015")
body.addObject(sketch16)
sketch16.AttachmentSupport = (doc.XY_Plane, [""])
sketch16.MapMode = "FlatFace"
sketch16.AttachmentOffset = App.Placement(App.Vector(0, 0, 2), App.Rotation())
sketch16.addGeometry([
    Part.LineSegment(App.Vector(31.4, -0.186638, 0), App.Vector(16.4, -0.186638, 0)),
    Part.ArcOfCircle(Part.Circle(App.Vector(16.4, -3.186638, 0), App.Vector(0, 0, 1), 3), math.radians(90), math.radians(270)),
    Part.LineSegment(App.Vector(16.4, -6.186638, 0), App.Vector(31.4, -6.186638, 0)),
    Part.ArcOfCircle(Part.Circle(App.Vector(31.4, -3.186638, 0), App.Vector(0, 0, 1), 3), math.radians(-90), math.radians(90)),
], False)
sketch16.addConstraint([
    Sketcher.Constraint("Tangent", 0, 2, 1, 1),
    Sketcher.Constraint("Tangent", 1, 2, 2, 1),
    Sketcher.Constraint("Tangent", 2, 2, 3, 1),
    Sketcher.Constraint("Tangent", 3, 2, 0, 1),
    Sketcher.Constraint("Horizontal", 0),
    Sketcher.Constraint("Horizontal", 2),
    Sketcher.Constraint("Radius", 1, Q("3 mm")),
    Sketcher.Constraint("DistanceX", 0, 2, 0, 1, Q("15 mm")),
    Sketcher.Constraint("DistanceX", -1, 1, 1, 3, Q("16.4 mm")),
    Sketcher.Constraint("DistanceY", 1, 3, -1, 1, Q("3.186638 mm")),
])
sketch16.setExpression("Constraints[6]", "Params.sketch16_radius")
sketch16.setExpression("Constraints[7]", "Params.sketch16_width")
pocket15 = doc.addObject("PartDesign::Pocket", "Pocket014")
body.addObject(pocket15)
pocket15.Profile = sketch16
pocket15.Type = "UpToFirst"

# Sketch on XY plane
sketch17 = doc.addObject("Sketcher::SketchObject", "Sketch016")
body.addObject(sketch17)
sketch17.AttachmentSupport = (doc.XY_Plane, [""])
sketch17.MapMode = "FlatFace"
sketch17.AttachmentOffset = App.Placement(App.Vector(0, 0, 2), App.Rotation())
sketch17.addGeometry([
    Part.LineSegment(App.Vector(31.4, 14.813362, 0), App.Vector(16.4, 14.813362, 0)),
    Part.ArcOfCircle(Part.Circle(App.Vector(16.4, 11.813362, 0), App.Vector(0, 0, 1), 3), math.radians(90), math.radians(270)),
    Part.LineSegment(App.Vector(16.4, 8.813362, 0), App.Vector(31.4, 8.813362, 0)),
    Part.ArcOfCircle(Part.Circle(App.Vector(31.4, 11.813362, 0), App.Vector(0, 0, 1), 3), math.radians(-90), math.radians(90)),
], False)
sketch17.addConstraint([
    Sketcher.Constraint("Tangent", 0, 2, 1, 1),
    Sketcher.Constraint("Tangent", 1, 2, 2, 1),
    Sketcher.Constraint("Tangent", 2, 2, 3, 1),
    Sketcher.Constraint("Tangent", 3, 2, 0, 1),
    Sketcher.Constraint("Horizontal", 0),
    Sketcher.Constraint("Horizontal", 2),
    Sketcher.Constraint("Radius", 1, Q("3 mm")),
    Sketcher.Constraint("DistanceX", 0, 2, 0, 1, Q("15 mm")),
    Sketcher.Constraint("DistanceX", -1, 1, 1, 3, Q("16.4 mm")),
    Sketcher.Constraint("DistanceY", -1, 1, 1, 3, Q("11.813362 mm")),
])
sketch17.setExpression("Constraints[6]", "Params.sketch17_radius")
sketch17.setExpression("Constraints[7]", "Params.sketch17_width")
pocket16 = doc.addObject("PartDesign::Pocket", "Pocket015")
body.addObject(pocket16)
pocket16.Profile = sketch17
pocket16.Type = "UpToFirst"
doc.recompute()

chamfer = doc.addObject("PartDesign::Chamfer", "Chamfer")
body.addObject(chamfer)
chamfer.Base = (pocket16, edges_at(pocket16, [(-46.1, -98.187, 1), (-46.1, 41.813, 1), (47.9, -98.187, 1)]))
chamfer.setExpression("Size", "Params.chamfer_size")

# Sketch on XY plane
sketch18 = doc.addObject("Sketcher::SketchObject", "Sketch017")
body.addObject(sketch18)
sketch18.AttachmentSupport = (doc.XY_Plane, [""])
sketch18.MapMode = "FlatFace"
sketch18.AttachmentOffset = App.Placement(App.Vector(0, 0, 2), App.Rotation())
sketch18.addGeometry(Part.Circle(App.Vector(11.479261, 33.813362, 0), App.Vector(0, 0, 1), 1.35), False)
sketch18.addConstraint([
    Sketcher.Constraint("Diameter", 0, Q("2.7 mm")),
    Sketcher.Constraint("DistanceX", -1, 1, 0, 3, Q("11.479261 mm")),
    Sketcher.Constraint("DistanceY", -1, 1, 0, 3, Q("33.813362 mm")),
])
sketch18.setExpression("Constraints[0]", "Params.sketch18_diameter")
pocket17 = doc.addObject("PartDesign::Pocket", "Pocket016")
body.addObject(pocket17)
pocket17.Profile = sketch18
pocket17.Type = "UpToFirst"

# Sketch on XY plane
sketch19 = doc.addObject("Sketcher::SketchObject", "Sketch018")
body.addObject(sketch19)
sketch19.AttachmentSupport = (doc.XY_Plane, [""])
sketch19.MapMode = "FlatFace"
sketch19.AttachmentOffset = App.Placement(App.Vector(0, 0, 2), App.Rotation())
sketch19.addGeometry(Part.Circle(App.Vector(27.9, 29.413438, 0), App.Vector(0, 0, 1), 1.35), False)
sketch19.addConstraint([
    Sketcher.Constraint("Diameter", 0, Q("2.7 mm")),
    Sketcher.Constraint("DistanceX", -1, 1, 0, 3, Q("27.9 mm")),
    Sketcher.Constraint("DistanceY", -1, 1, 0, 3, Q("29.413438 mm")),
])
sketch19.setExpression("Constraints[0]", "Params.sketch19_diameter")
pocket18 = doc.addObject("PartDesign::Pocket", "Pocket017")
body.addObject(pocket18)
pocket18.Profile = sketch19
pocket18.Type = "UpToFirst"

# Sketch on XY plane
sketch20 = doc.addObject("Sketcher::SketchObject", "Sketch019")
body.addObject(sketch20)
sketch20.AttachmentSupport = (doc.XY_Plane, [""])
sketch20.MapMode = "FlatFace"
sketch20.AttachmentOffset = App.Placement(App.Vector(0, 0, 2), App.Rotation())
add_polygon(sketch20, [(3.000756, 42.296828), (53.432968, 28.783557), (46.405101, 52.816513)])  # lines 0-2
sketch20.addConstraint([
    Sketcher.Constraint("Angle", 0, Q("-15 deg")),
    Sketcher.Constraint("DistanceX", -1, 1, 1, 2, Q("46.405101 mm")),
    Sketcher.Constraint("DistanceX", 2, 2, 0, 2, Q("50.432212 mm")),
    Sketcher.Constraint("Distance", 1, Q("25.039447 mm")),
    Sketcher.Constraint("Distance", 2, Q("44.660955 mm")),
    Sketcher.Constraint("DistanceY", -1, 1, 0, 2, Q("28.783557 mm")),
])
pocket19 = doc.addObject("PartDesign::Pocket", "Pocket018")
body.addObject(pocket19)
pocket19.Profile = sketch20
pocket19.Type = "UpToFirst"

# Sketch on XY plane
sketch21 = doc.addObject("Sketcher::SketchObject", "Sketch020")
body.addObject(sketch21)
sketch21.AttachmentSupport = (doc.XY_Plane, [""])
sketch21.MapMode = "FlatFace"
sketch21.AttachmentOffset = App.Placement(App.Vector(0, 0, 2), App.Rotation())
sketch21.addGeometry([
    Part.LineSegment(App.Vector(47.9, 30.266112, 0), App.Vector(67.851828, 50.21794, 0)),  # 0
    Part.ArcOfCircle(Part.Circle(App.Vector(62.548528, 55.521241, 0), App.Vector(0, 0, 1), 7.5), math.radians(-45), math.radians(130.558245)),  # 1
    Part.LineSegment(App.Vector(57.671872, 61.219331, 0), App.Vector(27.79832, 35.652341, 0)),  # 2
    Part.LineSegment(App.Vector(27.79832, 35.652341, 0), App.Vector(25.855389, 33.004756, 0)),  # 3
    Part.LineSegment(App.Vector(25.855389, 33.004756, 0), App.Vector(41.831287, 29.328294, 0)),  # 4
    Part.LineSegment(App.Vector(41.831287, 29.328294, 0), App.Vector(47.9, 30.266112, 0)),  # 5
    Part.Circle(App.Vector(62.548528, 55.521241, 0), App.Vector(0, 0, 1), 1.6),  # 6
], False)
sketch21.addConstraint([
    Sketcher.Constraint("Tangent", 0, 2, 1, 1),
    Sketcher.Constraint("Tangent", 1, 2, 2, 1),
    Sketcher.Constraint("Coincident", 2, 2, 3, 1),
    Sketcher.Constraint("Coincident", 3, 2, 4, 1),
    Sketcher.Constraint("Coincident", 4, 2, 5, 1),
    Sketcher.Constraint("Coincident", 5, 2, 0, 1),
    Sketcher.Constraint("Coincident", 6, 3, 1, 3),
    Sketcher.Constraint("Diameter", 6, Q("3.2 mm")),
    Sketcher.Constraint("Radius", 1, Q("7.5 mm")),
    Sketcher.Constraint("Angle", 0, Q("45 deg")),
    Sketcher.Constraint("DistanceX", -1, 1, 5, 2, Q("47.9 mm")),
    Sketcher.Constraint("DistanceY", 2, 2, 1, 3, Q("19.8689 mm")),
    Sketcher.Constraint("DistanceX", 3, 2, 4, 2, Q("15.975898 mm")),
    Sketcher.Constraint("Distance", 2, Q("39.32048 mm")),
    Sketcher.Constraint("DistanceY", -1, 1, 1, 3, Q("55.521241 mm")),
    Sketcher.Constraint("DistanceX", -1, 1, 0, 2, Q("67.851828 mm")),
    Sketcher.Constraint("DistanceX", -1, 1, 3, 2, Q("25.855389 mm")),
    Sketcher.Constraint("DistanceY", 4, 2, 3, 2, Q("3.676462 mm")),
    Sketcher.Constraint("Distance", 3, Q("3.284004 mm")),
])
sketch21.setExpression("Constraints[7]", "Params.sketch21_diameter")
sketch21.setExpression("Constraints[8]", "Params.sketch21_radius")
pad2 = doc.addObject("PartDesign::Pad", "Pad001")
body.addObject(pad2)
pad2.Profile = sketch21
pad2.setExpression("Length", "Params.pad2_length")
pad2.Reversed = True
doc.recompute()

fillet2 = doc.addObject("PartDesign::Fillet", "Fillet001")
body.addObject(fillet2)
fillet2.Base = (pad2, edges_at(pad2, [(47.9, 30.266, 1), (27.798, 35.652, 1)]))
fillet2.setExpression("Radius", "Params.fillet2_radius")

doc.recompute()
